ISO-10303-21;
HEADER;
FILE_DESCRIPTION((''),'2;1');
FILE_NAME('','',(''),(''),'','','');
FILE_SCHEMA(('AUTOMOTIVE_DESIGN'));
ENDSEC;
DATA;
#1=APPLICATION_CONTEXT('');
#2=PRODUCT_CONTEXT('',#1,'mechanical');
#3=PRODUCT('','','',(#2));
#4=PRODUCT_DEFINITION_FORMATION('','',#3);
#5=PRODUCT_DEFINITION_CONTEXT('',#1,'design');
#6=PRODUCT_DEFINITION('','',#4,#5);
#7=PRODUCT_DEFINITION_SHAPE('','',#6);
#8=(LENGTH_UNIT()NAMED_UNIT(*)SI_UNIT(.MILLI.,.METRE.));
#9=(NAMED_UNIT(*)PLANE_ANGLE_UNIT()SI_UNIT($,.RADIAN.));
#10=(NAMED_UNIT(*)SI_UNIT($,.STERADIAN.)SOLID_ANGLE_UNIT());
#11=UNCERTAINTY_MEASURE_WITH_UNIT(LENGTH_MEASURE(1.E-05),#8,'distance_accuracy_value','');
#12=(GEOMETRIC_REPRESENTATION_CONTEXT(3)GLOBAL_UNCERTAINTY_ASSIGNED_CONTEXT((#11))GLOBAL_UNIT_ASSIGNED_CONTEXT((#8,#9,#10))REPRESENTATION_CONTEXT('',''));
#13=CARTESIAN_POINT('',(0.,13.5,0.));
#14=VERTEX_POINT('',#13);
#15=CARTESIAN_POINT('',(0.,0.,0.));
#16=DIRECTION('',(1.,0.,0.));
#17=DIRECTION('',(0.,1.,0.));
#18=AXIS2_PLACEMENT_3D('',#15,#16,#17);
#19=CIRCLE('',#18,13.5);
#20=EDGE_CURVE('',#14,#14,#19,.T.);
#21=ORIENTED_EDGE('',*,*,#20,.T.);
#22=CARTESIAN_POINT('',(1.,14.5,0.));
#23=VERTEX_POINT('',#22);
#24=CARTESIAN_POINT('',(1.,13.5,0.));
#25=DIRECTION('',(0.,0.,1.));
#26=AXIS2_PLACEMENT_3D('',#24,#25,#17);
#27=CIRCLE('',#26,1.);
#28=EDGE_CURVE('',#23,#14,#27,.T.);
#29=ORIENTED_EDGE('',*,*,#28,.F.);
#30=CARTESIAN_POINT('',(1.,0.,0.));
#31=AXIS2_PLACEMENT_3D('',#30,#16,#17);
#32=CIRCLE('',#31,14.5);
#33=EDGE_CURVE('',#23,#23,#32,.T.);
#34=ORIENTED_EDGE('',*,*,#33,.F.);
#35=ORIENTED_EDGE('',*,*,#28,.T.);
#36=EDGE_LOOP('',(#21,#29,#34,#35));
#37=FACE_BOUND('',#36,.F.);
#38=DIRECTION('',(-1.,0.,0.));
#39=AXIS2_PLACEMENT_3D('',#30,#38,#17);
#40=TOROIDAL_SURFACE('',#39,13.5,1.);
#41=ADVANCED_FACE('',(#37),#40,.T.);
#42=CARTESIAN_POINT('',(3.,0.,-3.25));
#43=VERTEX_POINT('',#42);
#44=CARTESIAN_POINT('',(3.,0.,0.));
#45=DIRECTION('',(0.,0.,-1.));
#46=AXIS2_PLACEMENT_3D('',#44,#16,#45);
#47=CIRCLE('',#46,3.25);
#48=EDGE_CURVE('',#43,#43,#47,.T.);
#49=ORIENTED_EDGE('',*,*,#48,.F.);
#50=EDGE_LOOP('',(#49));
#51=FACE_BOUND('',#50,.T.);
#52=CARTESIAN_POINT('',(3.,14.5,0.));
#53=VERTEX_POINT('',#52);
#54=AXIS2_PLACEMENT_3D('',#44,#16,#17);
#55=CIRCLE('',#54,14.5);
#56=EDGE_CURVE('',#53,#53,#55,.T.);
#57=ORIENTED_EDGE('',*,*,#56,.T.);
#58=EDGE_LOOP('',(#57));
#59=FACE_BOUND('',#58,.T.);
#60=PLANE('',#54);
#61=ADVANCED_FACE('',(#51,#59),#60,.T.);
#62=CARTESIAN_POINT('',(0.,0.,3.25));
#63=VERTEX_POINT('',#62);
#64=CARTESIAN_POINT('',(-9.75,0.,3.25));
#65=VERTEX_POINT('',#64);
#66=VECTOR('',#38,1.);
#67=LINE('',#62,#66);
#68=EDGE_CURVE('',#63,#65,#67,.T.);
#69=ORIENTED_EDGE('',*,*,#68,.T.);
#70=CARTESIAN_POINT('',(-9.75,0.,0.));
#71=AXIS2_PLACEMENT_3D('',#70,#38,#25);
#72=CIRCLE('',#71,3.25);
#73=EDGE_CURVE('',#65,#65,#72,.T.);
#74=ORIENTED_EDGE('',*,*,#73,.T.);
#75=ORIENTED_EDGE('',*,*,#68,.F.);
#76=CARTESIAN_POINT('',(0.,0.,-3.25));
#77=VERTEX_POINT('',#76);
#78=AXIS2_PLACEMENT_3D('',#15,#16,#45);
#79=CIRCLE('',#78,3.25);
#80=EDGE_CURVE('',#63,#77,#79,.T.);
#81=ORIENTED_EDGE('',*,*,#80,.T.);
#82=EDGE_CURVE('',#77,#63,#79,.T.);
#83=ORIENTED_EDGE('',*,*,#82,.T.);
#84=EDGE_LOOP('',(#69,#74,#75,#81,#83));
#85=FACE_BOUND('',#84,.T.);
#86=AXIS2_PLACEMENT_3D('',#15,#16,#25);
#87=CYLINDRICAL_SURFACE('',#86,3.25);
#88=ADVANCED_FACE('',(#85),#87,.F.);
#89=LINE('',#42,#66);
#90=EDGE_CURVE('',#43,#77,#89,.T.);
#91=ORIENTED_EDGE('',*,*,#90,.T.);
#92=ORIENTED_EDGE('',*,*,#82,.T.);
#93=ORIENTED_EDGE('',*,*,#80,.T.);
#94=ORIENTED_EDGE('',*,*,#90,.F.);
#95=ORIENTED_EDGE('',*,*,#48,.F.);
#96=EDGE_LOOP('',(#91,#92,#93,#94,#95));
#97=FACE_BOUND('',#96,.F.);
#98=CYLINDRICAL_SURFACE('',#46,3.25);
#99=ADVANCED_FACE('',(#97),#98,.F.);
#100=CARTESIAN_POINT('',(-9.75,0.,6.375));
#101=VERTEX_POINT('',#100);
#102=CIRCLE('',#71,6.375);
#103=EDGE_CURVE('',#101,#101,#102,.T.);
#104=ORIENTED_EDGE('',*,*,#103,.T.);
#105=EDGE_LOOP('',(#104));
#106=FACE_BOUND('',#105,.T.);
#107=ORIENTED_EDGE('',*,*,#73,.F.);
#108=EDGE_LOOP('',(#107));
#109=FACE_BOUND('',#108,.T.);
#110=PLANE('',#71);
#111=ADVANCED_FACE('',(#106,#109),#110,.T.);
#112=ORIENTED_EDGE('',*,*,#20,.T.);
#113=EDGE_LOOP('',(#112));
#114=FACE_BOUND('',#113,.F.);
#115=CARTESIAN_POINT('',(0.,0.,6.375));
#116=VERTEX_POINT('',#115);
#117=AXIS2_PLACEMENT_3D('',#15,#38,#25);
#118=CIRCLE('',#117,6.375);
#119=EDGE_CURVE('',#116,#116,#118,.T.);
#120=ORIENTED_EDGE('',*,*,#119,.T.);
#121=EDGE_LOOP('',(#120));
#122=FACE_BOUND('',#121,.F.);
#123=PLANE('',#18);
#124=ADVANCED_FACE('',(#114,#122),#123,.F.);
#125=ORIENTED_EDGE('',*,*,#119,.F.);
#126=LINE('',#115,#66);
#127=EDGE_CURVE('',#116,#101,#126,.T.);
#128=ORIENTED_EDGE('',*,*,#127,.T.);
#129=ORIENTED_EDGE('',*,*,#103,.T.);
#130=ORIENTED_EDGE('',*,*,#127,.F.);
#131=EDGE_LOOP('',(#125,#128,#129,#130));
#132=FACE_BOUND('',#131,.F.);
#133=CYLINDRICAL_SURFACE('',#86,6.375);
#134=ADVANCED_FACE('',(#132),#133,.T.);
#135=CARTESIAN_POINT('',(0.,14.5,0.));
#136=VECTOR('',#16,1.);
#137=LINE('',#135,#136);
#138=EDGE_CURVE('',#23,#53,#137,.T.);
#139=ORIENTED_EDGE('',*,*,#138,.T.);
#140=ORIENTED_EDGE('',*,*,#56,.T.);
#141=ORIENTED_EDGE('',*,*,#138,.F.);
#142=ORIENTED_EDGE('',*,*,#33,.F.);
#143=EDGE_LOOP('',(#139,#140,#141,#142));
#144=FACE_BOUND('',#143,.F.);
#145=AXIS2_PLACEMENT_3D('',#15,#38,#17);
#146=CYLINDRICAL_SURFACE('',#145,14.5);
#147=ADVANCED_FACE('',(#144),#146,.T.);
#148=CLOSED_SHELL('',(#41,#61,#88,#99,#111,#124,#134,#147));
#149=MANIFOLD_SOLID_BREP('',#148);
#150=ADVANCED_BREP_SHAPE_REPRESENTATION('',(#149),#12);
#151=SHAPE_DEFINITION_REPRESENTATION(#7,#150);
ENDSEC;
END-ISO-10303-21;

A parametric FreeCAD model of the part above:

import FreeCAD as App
import Part
import Sketcher

V = App.Vector


def edges_at(feature, points):
    """Names of the edges that pass closest to the given points."""
    edges = feature.Shape.Edges
    near = lambda p: min(range(len(edges)), key=lambda i: edges[i].distToShape(Part.Vertex(*p))[0])
    return sorted({f"Edge{near(p) + 1}" for p in points})

doc = App.newDocument("Part")
body = doc.addObject("PartDesign::Body", "Body")

sketch1 = body.newObject("Sketcher::SketchObject", "Sketch")
sketch1.AttachmentSupport = (doc.getObject("YZ_Plane"), [""])
sketch1.MapMode = "FlatFace"
sketch1.addGeometry(Part.Circle(V(0, 0, 0), V(0, 0, 1), 14), False)
sketch1.addConstraint([
    Sketcher.Constraint("Coincident", 0, 3, -1, 1),
    Sketcher.Constraint("Diameter", 0, 29.0),
])
pad1 = body.newObject("PartDesign::Pad", "Pad")
pad1.Profile = sketch1
pad1.Length = 3
doc.recompute()

fillet = body.newObject("PartDesign::Fillet", "Fillet")
fillet.Base = (pad1, edges_at(pad1, [(0, -14.5, 0)]))
fillet.Radius = 1

sketch2 = body.newObject("Sketcher::SketchObject", "Sketch001")
sketch2.AttachmentSupport = (doc.getObject("YZ_Plane"), [""])
sketch2.MapMode = "FlatFace"
sketch2.AttachmentOffset = App.Placement(V(0, 0, 3), App.Rotation())
sketch2.addGeometry(Part.Circle(V(0, 0, 0), V(0, 0, 1), 3.2), False)
sketch2.addConstraint([
    Sketcher.Constraint("Coincident", 0, 3, -1, 1),
    Sketcher.Constraint("Diameter", 0, 6.5),
])
pocket1 = body.newObject("PartDesign::Pocket", "Pocket")
pocket1.Profile = sketch2
pocket1.Length = 3

sketch3 = body.newObject("Sketcher::SketchObject", "Sketch002")
sketch3.AttachmentSupport = (doc.getObject("YZ_Plane"), [""])
sketch3.MapMode = "FlatFace"
sketch3.addGeometry([
    Part.Circle(V(0, 0, 0), V(0, 0, 1), 6.4),
    Part.Circle(V(0, 0, 0), V(0, 0, 1), 3.2),
], False)
sketch3.addConstraint([
    Sketcher.Constraint("Coincident", 0, 3, -1, 1),
    Sketcher.Constraint("Coincident", 1, 3, -1, 1),
    Sketcher.Constraint("Diameter", 0, 12.75),
    Sketcher.Constraint("Diameter", 1, 6.5),
])
pad2 = body.newObject("PartDesign::Pad", "Pad001")
pad2.Profile = sketch3
pad2.Length = 9.75
pad2.Reversed = True

doc.recompute()
